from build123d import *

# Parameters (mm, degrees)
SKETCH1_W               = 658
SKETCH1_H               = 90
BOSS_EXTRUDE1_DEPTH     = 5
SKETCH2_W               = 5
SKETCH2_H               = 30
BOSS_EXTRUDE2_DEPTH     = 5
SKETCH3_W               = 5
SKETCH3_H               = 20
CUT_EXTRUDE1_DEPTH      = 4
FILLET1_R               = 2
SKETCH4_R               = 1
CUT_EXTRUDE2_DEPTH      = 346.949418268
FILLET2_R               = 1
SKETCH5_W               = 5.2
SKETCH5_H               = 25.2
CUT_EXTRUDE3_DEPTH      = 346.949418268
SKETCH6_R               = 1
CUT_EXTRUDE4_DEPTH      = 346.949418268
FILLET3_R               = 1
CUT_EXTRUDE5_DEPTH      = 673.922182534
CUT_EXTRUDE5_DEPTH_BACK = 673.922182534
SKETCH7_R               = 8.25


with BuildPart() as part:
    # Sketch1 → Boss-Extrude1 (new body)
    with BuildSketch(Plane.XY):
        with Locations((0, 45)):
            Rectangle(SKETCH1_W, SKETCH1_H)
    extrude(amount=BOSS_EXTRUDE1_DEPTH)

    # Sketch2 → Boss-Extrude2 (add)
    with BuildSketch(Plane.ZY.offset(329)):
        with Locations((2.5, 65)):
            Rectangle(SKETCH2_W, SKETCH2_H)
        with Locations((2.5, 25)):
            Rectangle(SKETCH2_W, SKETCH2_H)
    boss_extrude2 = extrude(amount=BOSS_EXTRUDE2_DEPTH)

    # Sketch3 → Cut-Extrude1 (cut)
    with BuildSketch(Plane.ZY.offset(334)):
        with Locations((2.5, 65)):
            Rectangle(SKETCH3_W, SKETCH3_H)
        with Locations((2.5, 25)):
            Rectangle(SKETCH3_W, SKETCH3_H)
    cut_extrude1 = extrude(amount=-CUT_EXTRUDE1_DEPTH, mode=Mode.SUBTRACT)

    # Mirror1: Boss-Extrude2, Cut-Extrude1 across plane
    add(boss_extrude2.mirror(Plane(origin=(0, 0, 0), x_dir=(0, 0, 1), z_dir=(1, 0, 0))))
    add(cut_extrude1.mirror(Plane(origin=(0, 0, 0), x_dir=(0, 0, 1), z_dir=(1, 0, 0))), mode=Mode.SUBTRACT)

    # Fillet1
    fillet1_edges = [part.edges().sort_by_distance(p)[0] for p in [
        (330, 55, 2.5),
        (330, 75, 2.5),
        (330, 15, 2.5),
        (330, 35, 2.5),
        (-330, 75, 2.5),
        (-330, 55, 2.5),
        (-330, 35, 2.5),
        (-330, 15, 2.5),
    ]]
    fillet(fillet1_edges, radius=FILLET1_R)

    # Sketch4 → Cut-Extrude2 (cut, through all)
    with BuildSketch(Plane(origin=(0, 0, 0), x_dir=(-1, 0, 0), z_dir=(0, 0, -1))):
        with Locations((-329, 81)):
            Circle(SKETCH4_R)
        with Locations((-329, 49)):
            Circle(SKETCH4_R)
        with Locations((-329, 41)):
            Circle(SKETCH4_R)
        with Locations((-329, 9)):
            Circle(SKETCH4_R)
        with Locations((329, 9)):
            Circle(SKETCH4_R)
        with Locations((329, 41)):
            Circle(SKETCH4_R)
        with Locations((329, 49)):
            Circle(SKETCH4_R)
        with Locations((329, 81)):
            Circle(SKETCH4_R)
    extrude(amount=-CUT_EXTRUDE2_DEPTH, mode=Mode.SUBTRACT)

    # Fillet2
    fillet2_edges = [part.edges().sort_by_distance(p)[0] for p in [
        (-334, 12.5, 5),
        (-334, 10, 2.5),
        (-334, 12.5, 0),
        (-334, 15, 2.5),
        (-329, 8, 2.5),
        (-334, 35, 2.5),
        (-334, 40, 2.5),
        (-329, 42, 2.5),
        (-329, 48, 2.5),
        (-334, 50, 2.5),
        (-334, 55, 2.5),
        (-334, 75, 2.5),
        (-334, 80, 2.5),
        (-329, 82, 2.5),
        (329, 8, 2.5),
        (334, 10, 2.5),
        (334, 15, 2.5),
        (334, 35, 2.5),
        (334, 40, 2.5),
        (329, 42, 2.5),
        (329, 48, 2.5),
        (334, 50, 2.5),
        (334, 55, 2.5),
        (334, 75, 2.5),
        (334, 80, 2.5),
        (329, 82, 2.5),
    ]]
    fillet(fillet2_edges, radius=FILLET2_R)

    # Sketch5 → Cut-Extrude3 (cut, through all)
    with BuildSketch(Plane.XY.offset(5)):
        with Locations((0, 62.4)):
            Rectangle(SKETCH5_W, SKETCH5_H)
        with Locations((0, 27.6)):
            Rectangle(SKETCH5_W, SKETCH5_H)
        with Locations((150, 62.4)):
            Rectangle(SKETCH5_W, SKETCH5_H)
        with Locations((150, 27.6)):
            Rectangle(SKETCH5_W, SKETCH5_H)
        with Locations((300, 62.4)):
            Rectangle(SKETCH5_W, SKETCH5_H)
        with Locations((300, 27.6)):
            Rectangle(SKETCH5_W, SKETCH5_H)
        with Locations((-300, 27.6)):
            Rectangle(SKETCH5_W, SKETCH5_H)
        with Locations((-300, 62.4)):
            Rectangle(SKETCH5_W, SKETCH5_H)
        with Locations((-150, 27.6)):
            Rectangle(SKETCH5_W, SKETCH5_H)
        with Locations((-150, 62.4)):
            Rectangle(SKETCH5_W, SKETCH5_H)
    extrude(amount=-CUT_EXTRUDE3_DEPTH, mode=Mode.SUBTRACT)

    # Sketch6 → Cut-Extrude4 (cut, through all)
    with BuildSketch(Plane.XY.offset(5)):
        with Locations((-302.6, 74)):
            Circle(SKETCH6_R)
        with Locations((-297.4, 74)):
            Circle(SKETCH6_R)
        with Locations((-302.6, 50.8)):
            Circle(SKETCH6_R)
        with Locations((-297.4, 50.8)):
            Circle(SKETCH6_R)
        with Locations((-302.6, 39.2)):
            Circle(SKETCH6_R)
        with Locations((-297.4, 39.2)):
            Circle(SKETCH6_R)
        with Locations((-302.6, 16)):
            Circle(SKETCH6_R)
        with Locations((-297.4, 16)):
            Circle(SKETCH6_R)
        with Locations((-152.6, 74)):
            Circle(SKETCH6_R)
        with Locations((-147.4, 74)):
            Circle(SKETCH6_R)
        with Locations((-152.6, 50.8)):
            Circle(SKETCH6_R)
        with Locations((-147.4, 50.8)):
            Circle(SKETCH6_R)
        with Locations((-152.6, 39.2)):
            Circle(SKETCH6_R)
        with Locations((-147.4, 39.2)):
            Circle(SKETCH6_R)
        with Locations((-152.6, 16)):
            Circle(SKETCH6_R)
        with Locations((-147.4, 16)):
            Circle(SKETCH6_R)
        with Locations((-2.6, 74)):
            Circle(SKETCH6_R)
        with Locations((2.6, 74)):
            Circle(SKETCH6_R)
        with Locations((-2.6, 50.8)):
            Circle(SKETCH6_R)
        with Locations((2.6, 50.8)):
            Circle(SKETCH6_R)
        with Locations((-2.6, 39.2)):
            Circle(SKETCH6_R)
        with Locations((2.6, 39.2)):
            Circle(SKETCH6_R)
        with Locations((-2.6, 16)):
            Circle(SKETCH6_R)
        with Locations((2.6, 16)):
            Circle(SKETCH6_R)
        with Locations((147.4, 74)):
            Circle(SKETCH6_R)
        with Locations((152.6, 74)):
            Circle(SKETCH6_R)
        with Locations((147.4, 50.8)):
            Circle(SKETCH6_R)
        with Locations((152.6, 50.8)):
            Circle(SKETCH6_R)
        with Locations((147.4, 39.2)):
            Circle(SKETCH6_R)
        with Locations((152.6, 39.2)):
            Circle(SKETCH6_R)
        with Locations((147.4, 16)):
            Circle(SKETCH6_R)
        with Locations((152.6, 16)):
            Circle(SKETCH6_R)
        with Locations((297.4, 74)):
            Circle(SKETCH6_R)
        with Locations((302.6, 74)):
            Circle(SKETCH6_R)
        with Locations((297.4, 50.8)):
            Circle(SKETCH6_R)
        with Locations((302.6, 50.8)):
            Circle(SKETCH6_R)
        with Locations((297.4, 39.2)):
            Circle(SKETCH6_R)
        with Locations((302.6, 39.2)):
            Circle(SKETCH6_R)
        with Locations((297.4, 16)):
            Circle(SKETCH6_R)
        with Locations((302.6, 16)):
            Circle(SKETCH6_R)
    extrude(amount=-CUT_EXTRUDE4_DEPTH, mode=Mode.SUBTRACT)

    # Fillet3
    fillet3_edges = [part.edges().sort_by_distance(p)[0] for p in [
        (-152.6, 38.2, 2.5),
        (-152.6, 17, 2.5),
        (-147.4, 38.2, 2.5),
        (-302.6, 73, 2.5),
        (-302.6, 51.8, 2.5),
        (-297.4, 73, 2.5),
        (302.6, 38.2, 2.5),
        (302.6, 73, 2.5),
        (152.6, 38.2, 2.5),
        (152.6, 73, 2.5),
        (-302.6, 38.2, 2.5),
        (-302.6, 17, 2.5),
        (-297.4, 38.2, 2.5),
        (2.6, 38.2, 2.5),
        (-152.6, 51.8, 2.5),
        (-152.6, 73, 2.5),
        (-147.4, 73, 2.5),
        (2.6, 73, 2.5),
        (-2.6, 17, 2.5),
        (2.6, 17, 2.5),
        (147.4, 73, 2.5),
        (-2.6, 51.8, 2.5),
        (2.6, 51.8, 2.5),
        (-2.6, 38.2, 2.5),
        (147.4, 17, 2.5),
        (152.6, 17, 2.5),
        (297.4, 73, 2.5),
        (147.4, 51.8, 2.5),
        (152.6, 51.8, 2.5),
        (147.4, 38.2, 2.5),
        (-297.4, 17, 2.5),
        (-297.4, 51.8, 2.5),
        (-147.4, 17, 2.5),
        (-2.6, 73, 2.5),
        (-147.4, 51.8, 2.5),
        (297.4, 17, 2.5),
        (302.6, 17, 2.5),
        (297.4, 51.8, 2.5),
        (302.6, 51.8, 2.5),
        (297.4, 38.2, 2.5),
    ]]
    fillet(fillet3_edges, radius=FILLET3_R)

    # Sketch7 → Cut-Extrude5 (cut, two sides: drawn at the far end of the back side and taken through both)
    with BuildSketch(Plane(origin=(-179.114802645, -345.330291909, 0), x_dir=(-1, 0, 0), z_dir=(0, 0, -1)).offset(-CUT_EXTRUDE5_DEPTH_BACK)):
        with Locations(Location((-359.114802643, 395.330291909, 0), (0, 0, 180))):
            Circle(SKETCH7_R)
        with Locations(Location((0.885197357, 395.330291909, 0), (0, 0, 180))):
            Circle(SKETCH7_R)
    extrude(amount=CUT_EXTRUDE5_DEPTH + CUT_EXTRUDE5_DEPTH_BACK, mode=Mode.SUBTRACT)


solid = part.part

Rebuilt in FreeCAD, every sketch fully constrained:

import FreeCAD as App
import Part
import Sketcher

V = App.Vector
Q = App.Units.Quantity


def edges_at(feature, points):
    """Names of the edges that pass closest to the given points."""
    edges = feature.Shape.Edges
    near = lambda p: min(range(len(edges)), key=lambda i: edges[i].distToShape(Part.Vertex(*p))[0])
    return sorted({f"Edge{near(p) + 1}" for p in points})

doc = App.newDocument("Part")
params = doc.addObject("Spreadsheet::Sheet", "Params")
for row, (alias, value) in enumerate([
    ("sketch1_width", "658 mm"),
    ("sketch1_height", "90 mm"),
    ("pad1_length", "5 mm"),
    ("sketch2_width", "30 mm"),
    ("sketch2_height", "5 mm"),
    ("pad2_length", "5 mm"),
    ("sketch3_width", "20 mm"),
    ("sketch3_height", "5 mm"),
    ("pocket1_length", "4 mm"),
    ("fillet_radius", "2 mm"),
    ("sketch4_diameter", "2 mm"),
    ("fillet2_radius", "1 mm"),
    ("sketch5_width", "5.2 mm"),
    ("sketch5_height", "25.2 mm"),
    ("sketch6_diameter", "2 mm"),
    ("fillet3_radius", "1 mm"),
    ("sketch7_diameter", "16.5 mm"),
], start=1):
    params.set(f"A{row}", alias)
    params.set(f"B{row}", "=" + value)
    params.setAlias(f"B{row}", alias)

body = doc.addObject("PartDesign::Body", "Body")

# Sketch on XY plane
sketch1 = body.newObject("Sketcher::SketchObject", "Sketch")
sketch1.AttachmentSupport = (doc.getObject("XY_Plane"), [""])
sketch1.MapMode = "FlatFace"
sketch1.addGeometry([
    Part.LineSegment(V(-329, 90, 0), V(-329, 0, 0)),
    Part.LineSegment(V(-329, 0, 0), V(329, 0, 0)),
    Part.LineSegment(V(329, 0, 0), V(329, 90, 0)),
    Part.LineSegment(V(329, 90, 0), V(-329, 90, 0)),
], False)
sketch1.addConstraint([
    Sketcher.Constraint("Coincident", 0, 2, 1, 1),
    Sketcher.Constraint("Coincident", 1, 2, 2, 1),
    Sketcher.Constraint("Coincident", 2, 2, 3, 1),
    Sketcher.Constraint("Coincident", 3, 2, 0, 1),
    Sketcher.Constraint("Vertical", 0),
    Sketcher.Constraint("Horizontal", 1),
    Sketcher.Constraint("Vertical", 2),
    Sketcher.Constraint("Horizontal", 3),
    Sketcher.Constraint("Symmetric", 0, 2, 1, 2, -1, 1),
    Sketcher.Constraint("DistanceX", 1, 1, 1, 2, Q("658 mm")),
    Sketcher.Constraint("DistanceY", 0, 2, 0, 1, Q("90 mm")),
])
sketch1.setExpression("Constraints[9]", "Params.sketch1_width")
sketch1.setExpression("Constraints[10]", "Params.sketch1_height")
pad1 = body.newObject("PartDesign::Pad", "Pad")
pad1.Profile = sketch1
pad1.setExpression("Length", "Params.pad1_length")

# Sketch on YZ plane
sketch2 = body.newObject("Sketcher::SketchObject", "Sketch001")
sketch2.AttachmentSupport = (doc.getObject("YZ_Plane"), [""])
sketch2.MapMode = "FlatFace"
sketch2.AttachmentOffset = App.Placement(V(0, 0, -329), App.Rotation())
sketch2.addGeometry([
    Part.LineSegment(V(80, 0, 0), V(50, 0, 0)),  # 0
    Part.LineSegment(V(50, 0, 0), V(50, 5, 0)),  # 1
    Part.LineSegment(V(50, 5, 0), V(80, 5, 0)),  # 2
    Part.LineSegment(V(80, 5, 0), V(80, 0, 0)),  # 3
    Part.LineSegment(V(40, 0, 0), V(10, 0, 0)),  # 4
    Part.LineSegment(V(10, 0, 0), V(10, 5, 0)),  # 5
    Part.LineSegment(V(10, 5, 0), V(40, 5, 0)),  # 6
    Part.LineSegment(V(40, 5, 0), V(40, 0, 0)),  # 7
], False)
sketch2.addConstraint([
    Sketcher.Constraint("Coincident", 0, 2, 1, 1),
    Sketcher.Constraint("Coincident", 1, 2, 2, 1),
    Sketcher.Constraint("Coincident", 2, 2, 3, 1),
    Sketcher.Constraint("Coincident", 3, 2, 0, 1),
    Sketcher.Constraint("Coincident", 4, 2, 5, 1),
    Sketcher.Constraint("Coincident", 5, 2, 6, 1),
    Sketcher.Constraint("Coincident", 6, 2, 7, 1),
    Sketcher.Constraint("Coincident", 7, 2, 4, 1),
    Sketcher.Constraint("Horizontal", 0),
    Sketcher.Constraint("Vertical", 1),
    Sketcher.Constraint("Horizontal", 2),
    Sketcher.Constraint("Vertical", 3),
    Sketcher.Constraint("Horizontal", 4),
    Sketcher.Constraint("Vertical", 5),
    Sketcher.Constraint("Horizontal", 6),
    Sketcher.Constraint("Vertical", 7),
    Sketcher.Constraint("PointOnObject", 0, 2, -1),
    Sketcher.Constraint("PointOnObject", 4, 2, -1),
    Sketcher.Constraint("Horizontal", 2, 2, 5, 2),
    Sketcher.Constraint("Equal", 2, 4),
    Sketcher.Constraint("DistanceX", 0, 2, 0, 1, Q("30 mm")),
    Sketcher.Constraint("DistanceY", 1, 1, 1, 2, Q("5 mm")),
    Sketcher.Constraint("DistanceX", -1, 1, 0, 2, Q("50 mm")),
    Sketcher.Constraint("DistanceX", -1, 1, 4, 2, Q("10 mm")),
])
sketch2.setExpression("Constraints[20]", "Params.sketch2_width")
sketch2.setExpression("Constraints[21]", "Params.sketch2_height")
pad2 = body.newObject("PartDesign::Pad", "Pad001")
pad2.Profile = sketch2
pad2.setExpression("Length", "Params.pad2_length")
pad2.Reversed = True

# Sketch on YZ plane
sketch3 = body.newObject("Sketcher::SketchObject", "Sketch002")
sketch3.AttachmentSupport = (doc.getObject("YZ_Plane"), [""])
sketch3.MapMode = "FlatFace"
sketch3.AttachmentOffset = App.Placement(V(0, 0, -334), App.Rotation())
sketch3.addGeometry([
    Part.LineSegment(V(75, 0, 0), V(55, 0, 0)),  # 0
    Part.LineSegment(V(55, 0, 0), V(55, 5, 0)),  # 1
    Part.LineSegment(V(55, 5, 0), V(75, 5, 0)),  # 2
    Part.LineSegment(V(75, 5, 0), V(75, 0, 0)),  # 3
    Part.LineSegment(V(35, 0, 0), V(15, 0, 0)),  # 4
    Part.LineSegment(V(15, 0, 0), V(15, 5, 0)),  # 5
    Part.LineSegment(V(15, 5, 0), V(35, 5, 0)),  # 6
    Part.LineSegment(V(35, 5, 0), V(35, 0, 0)),  # 7
], False)
sketch3.addConstraint([
    Sketcher.Constraint("Coincident", 0, 2, 1, 1),
    Sketcher.Constraint("Coincident", 1, 2, 2, 1),
    Sketcher.Constraint("Coincident", 2, 2, 3, 1),
    Sketcher.Constraint("Coincident", 3, 2, 0, 1),
    Sketcher.Constraint("Coincident", 4, 2, 5, 1),
    Sketcher.Constraint("Coincident", 5, 2, 6, 1),
    Sketcher.Constraint("Coincident", 6, 2, 7, 1),
    Sketcher.Constraint("Coincident", 7, 2, 4, 1),
    Sketcher.Constraint("Horizontal", 0),
    Sketcher.Constraint("Vertical", 1),
    Sketcher.Constraint("Horizontal", 2),
    Sketcher.Constraint("Vertical", 3),
    Sketcher.Constraint("Horizontal", 4),
    Sketcher.Constraint("Vertical", 5),
    Sketcher.Constraint("Horizontal", 6),
    Sketcher.Constraint("Vertical", 7),
    Sketcher.Constraint("PointOnObject", 0, 2, -1),
    Sketcher.Constraint("PointOnObject", 4, 2, -1),
    Sketcher.Constraint("Horizontal", 2, 2, 5, 2),
    Sketcher.Constraint("Equal", 2, 4),
    Sketcher.Constraint("DistanceX", 0, 2, 0, 1, Q("20 mm")),
    Sketcher.Constraint("DistanceY", 1, 1, 1, 2, Q("5 mm")),
    Sketcher.Constraint("DistanceX", -1, 1, 0, 2, Q("55 mm")),
    Sketcher.Constraint("DistanceX", -1, 1, 4, 2, Q("15 mm")),
])
sketch3.setExpression("Constraints[20]", "Params.sketch3_width")
sketch3.setExpression("Constraints[21]", "Params.sketch3_height")
pocket1 = body.newObject("PartDesign::Pocket", "Pocket")
pocket1.Profile = sketch3
pocket1.setExpression("Length", "Params.pocket1_length")
pocket1.Reversed = True
doc.recompute()

mirrored = body.newObject("PartDesign::Mirrored", "Mirrored")
mirrored.Originals = [pad2, pocket1]
mirrored.MirrorPlane = (doc.getObject("YZ_Plane"), [""])
body.Tip = mirrored
doc.recompute()

fillet = body.newObject("PartDesign::Fillet", "Fillet")
fillet.Base = (mirrored, edges_at(mirrored, [
    (330, 55, 2.5),
    (330, 75, 2.5),
    (330, 15, 2.5),
    (330, 35, 2.5),
    (-330, 75, 2.5),
    (-330, 55, 2.5),
    (-330, 35, 2.5),
    (-330, 15, 2.5),
]))
fillet.setExpression("Radius", "Params.fillet_radius")

# Sketch on XY plane
sketch4 = body.newObject("Sketcher::SketchObject", "Sketch003")
sketch4.AttachmentSupport = (doc.getObject("XY_Plane"), [""])
sketch4.MapMode = "FlatFace"
sketch4.addGeometry([
    Part.Circle(V(329, 81, 0), V(0, 0, 1), 1),  # 0
    Part.Circle(V(329, 49, 0), V(0, 0, 1), 1),  # 1
    Part.Circle(V(329, 41, 0), V(0, 0, 1), 1),  # 2
    Part.Circle(V(329, 9, 0), V(0, 0, 1), 1),  # 3
    Part.Circle(V(-329, 9, 0), V(0, 0, 1), 1),  # 4
    Part.Circle(V(-329, 41, 0), V(0, 0, 1), 1),  # 5
    Part.Circle(V(-329, 49, 0), V(0, 0, 1), 1),  # 6
    Part.Circle(V(-329, 81, 0), V(0, 0, 1), 1),  # 7
], False)
sketch4.addConstraint([
    Sketcher.Constraint("Equal", 0, 1),
    Sketcher.Constraint("Equal", 1, 2),
    Sketcher.Constraint("Equal", 2, 3),
    Sketcher.Constraint("Equal", 3, 4),
    Sketcher.Constraint("Equal", 4, 5),
    Sketcher.Constraint("Equal", 5, 6),
    Sketcher.Constraint("Equal", 6, 7),
    Sketcher.Constraint("Symmetric", 3, 3, 4, 3, -2),
    Sketcher.Constraint("Symmetric", 2, 3, 5, 3, -2),
    Sketcher.Constraint("Symmetric", 1, 3, 6, 3, -2),
    Sketcher.Constraint("Symmetric", 0, 3, 7, 3, -2),
    Sketcher.Constraint("Vertical", 0, 3, 1, 3),
    Sketcher.Constraint("Vertical", 1, 3, 2, 3),
    Sketcher.Constraint("Vertical", 2, 3, 3, 3),
    Sketcher.Constraint("Diameter", 0, Q("2 mm")),
    Sketcher.Constraint("DistanceX", -1, 1, 0, 3, Q("329 mm")),
    Sketcher.Constraint("DistanceY", -1, 1, 0, 3, Q("81 mm")),
    Sketcher.Constraint("DistanceY", -1, 1, 1, 3, Q("49 mm")),
    Sketcher.Constraint("DistanceY", -1, 1, 2, 3, Q("41 mm")),
    Sketcher.Constraint("DistanceY", -1, 1, 3, 3, Q("9 mm")),
])
sketch4.setExpression("Constraints[14]", "Params.sketch4_diameter")
pocket2 = body.newObject("PartDesign::Pocket", "Pocket001")
pocket2.Profile = sketch4
pocket2.Type = "ThroughAll"
pocket2.Reversed = True
doc.recompute()

fillet2 = body.newObject("PartDesign::Fillet", "Fillet001")
fillet2.Base = (pocket2, edges_at(pocket2, [
    (-334, 12.5, 5),
    (-334, 10, 2.5),
    (-334, 12.5, 0),
    (-334, 15, 2.5),
    (-329, 8, 2.5),
    (-334, 35, 2.5),
    (-334, 40, 2.5),
    (-329, 42, 2.5),
    (-329, 48, 2.5),
    (-334, 50, 2.5),
    (-334, 55, 2.5),
    (-334, 75, 2.5),
    (-334, 80, 2.5),
    (-329, 82, 2.5),
    (329, 8, 2.5),
    (334, 10, 2.5),
    (334, 15, 2.5),
    (334, 35, 2.5),
    (334, 40, 2.5),
    (329, 42, 2.5),
    (329, 48, 2.5),
    (334, 50, 2.5),
    (334, 55, 2.5),
    (334, 75, 2.5),
    (334, 80, 2.5),
    (329, 82, 2.5),
]))
fillet2.setExpression("Radius", "Params.fillet2_radius")

# Sketch on XY plane
sketch5 = body.newObject("Sketcher::SketchObject", "Sketch004")
sketch5.AttachmentSupport = (doc.getObject("XY_Plane"), [""])
sketch5.MapMode = "FlatFace"
sketch5.AttachmentOffset = App.Placement(V(0, 0, 5), App.Rotation())
sketch5.addGeometry([
    Part.LineSegment(V(-3, 75, 0), V(-3, 50, 0)),  # 0
    Part.LineSegment(V(-3, 50, 0), V(3, 50, 0)),  # 1
    Part.LineSegment(V(3, 50, 0), V(3, 75, 0)),  # 2
    Part.LineSegment(V(3, 75, 0), V(-3, 75, 0)),  # 3
    Part.LineSegment(V(-3, 40, 0), V(-3, 15, 0)),  # 4
    Part.LineSegment(V(-3, 15, 0), V(3, 15, 0)),  # 5
    Part.LineSegment(V(3, 15, 0), V(3, 40, 0)),  # 6
    Part.LineSegment(V(3, 40, 0), V(-3, 40, 0)),  # 7
    Part.LineSegment(V(147, 75, 0), V(147, 50, 0)),  # 8
    Part.LineSegment(V(147, 50, 0), V(153, 50, 0)),  # 9
    Part.LineSegment(V(153, 50, 0), V(153, 75, 0)),  # 10
    Part.LineSegment(V(153, 75, 0), V(147, 75, 0)),  # 11
    Part.LineSegment(V(147, 40, 0), V(147, 15, 0)),  # 12
    Part.LineSegment(V(147, 15, 0), V(153, 15, 0)),  # 13
    Part.LineSegment(V(153, 15, 0), V(153, 40, 0)),  # 14
    Part.LineSegment(V(153, 40, 0), V(147, 40, 0)),  # 15
    Part.LineSegment(V(297, 75, 0), V(297, 50, 0)),  # 16
    Part.LineSegment(V(297, 50, 0), V(303, 50, 0)),  # 17
    Part.LineSegment(V(303, 50, 0), V(303, 75, 0)),  # 18
    Part.LineSegment(V(303, 75, 0), V(297, 75, 0)),  # 19
    Part.LineSegment(V(297, 40, 0), V(297, 15, 0)),  # 20
    Part.LineSegment(V(297, 15, 0), V(303, 15, 0)),  # 21
    Part.LineSegment(V(303, 15, 0), V(303, 40, 0)),  # 22
    Part.LineSegment(V(303, 40, 0), V(297, 40, 0)),  # 23
    Part.LineSegment(V(-303, 40, 0), V(-303, 15, 0)),  # 24
    Part.LineSegment(V(-303, 15, 0), V(-297, 15, 0)),  # 25
    Part.LineSegment(V(-297, 15, 0), V(-297, 40, 0)),  # 26
    Part.LineSegment(V(-297, 40, 0), V(-303, 40, 0)),  # 27
    Part.LineSegment(V(-303, 75, 0), V(-303, 50, 0)),  # 28
    Part.LineSegment(V(-303, 50, 0), V(-297, 50, 0)),  # 29
    Part.LineSegment(V(-297, 50, 0), V(-297, 75, 0)),  # 30
    Part.LineSegment(V(-297, 75, 0), V(-303, 75, 0)),  # 31
    Part.LineSegment(V(-153, 40, 0), V(-153, 15, 0)),  # 32
    Part.LineSegment(V(-153, 15, 0), V(-147, 15, 0)),  # 33
    Part.LineSegment(V(-147, 15, 0), V(-147, 40, 0)),  # 34
    Part.LineSegment(V(-147, 40, 0), V(-153, 40, 0)),  # 35
    Part.LineSegment(V(-153, 75, 0), V(-153, 50, 0)),  # 36
    Part.LineSegment(V(-153, 50, 0), V(-147, 50, 0)),  # 37
    Part.LineSegment(V(-147, 50, 0), V(-147, 75, 0)),  # 38
    Part.LineSegment(V(-147, 75, 0), V(-153, 75, 0)),  # 39
], False)
sketch5.addConstraint([
    Sketcher.Constraint("Coincident", 0, 2, 1, 1),
    Sketcher.Constraint("Coincident", 1, 2, 2, 1),
    Sketcher.Constraint("Coincident", 2, 2, 3, 1),
    Sketcher.Constraint("Coincident", 3, 2, 0, 1),
    Sketcher.Constraint("Coincident", 4, 2, 5, 1),
    Sketcher.Constraint("Coincident", 5, 2, 6, 1),
    Sketcher.Constraint("Coincident", 6, 2, 7, 1),
    Sketcher.Constraint("Coincident", 7, 2, 4, 1),
    Sketcher.Constraint("Coincident", 8, 2, 9, 1),
    Sketcher.Constraint("Coincident", 9, 2, 10, 1),
    Sketcher.Constraint("Coincident", 10, 2, 11, 1),
    Sketcher.Constraint("Coincident", 11, 2, 8, 1),
    Sketcher.Constraint("Coincident", 12, 2, 13, 1),
    Sketcher.Constraint("Coincident", 13, 2, 14, 1),
    Sketcher.Constraint("Coincident", 14, 2, 15, 1),
    Sketcher.Constraint("Coincident", 15, 2, 12, 1),
    Sketcher.Constraint("Coincident", 16, 2, 17, 1),
    Sketcher.Constraint("Coincident", 17, 2, 18, 1),
    Sketcher.Constraint("Coincident", 18, 2, 19, 1),
    Sketcher.Constraint("Coincident", 19, 2, 16, 1),
    Sketcher.Constraint("Coincident", 20, 2, 21, 1),
    Sketcher.Constraint("Coincident", 21, 2, 22, 1),
    Sketcher.Constraint("Coincident", 22, 2, 23, 1),
    Sketcher.Constraint("Coincident", 23, 2, 20, 1),
    Sketcher.Constraint("Coincident", 24, 2, 25, 1),
    Sketcher.Constraint("Coincident", 25, 2, 26, 1),
    Sketcher.Constraint("Coincident", 26, 2, 27, 1),
    Sketcher.Constraint("Coincident", 27, 2, 24, 1),
    Sketcher.Constraint("Coincident", 28, 2, 29, 1),
    Sketcher.Constraint("Coincident", 29, 2, 30, 1),
    Sketcher.Constraint("Coincident", 30, 2, 31, 1),
    Sketcher.Constraint("Coincident", 31, 2, 28, 1),
    Sketcher.Constraint("Coincident", 32, 2, 33, 1),
    Sketcher.Constraint("Coincident", 33, 2, 34, 1),
    Sketcher.Constraint("Coincident", 34, 2, 35, 1),
    Sketcher.Constraint("Coincident", 35, 2, 32, 1),
    Sketcher.Constraint("Coincident", 36, 2, 37, 1),
    Sketcher.Constraint("Coincident", 37, 2, 38, 1),
    Sketcher.Constraint("Coincident", 38, 2, 39, 1),
    Sketcher.Constraint("Coincident", 39, 2, 36, 1),
    Sketcher.Constraint("Vertical", 0),
    Sketcher.Constraint("Horizontal", 1),
    Sketcher.Constraint("Vertical", 2),
    Sketcher.Constraint("Horizontal", 3),
    Sketcher.Constraint("Vertical", 4),
    Sketcher.Constraint("Horizontal", 5),
    Sketcher.Constraint("Vertical", 6),
    Sketcher.Constraint("Horizontal", 7),
    Sketcher.Constraint("Vertical", 8),
    Sketcher.Constraint("Horizontal", 9),
    Sketcher.Constraint("Vertical", 10),
    Sketcher.Constraint("Horizontal", 11),
    Sketcher.Constraint("Vertical", 12),
    Sketcher.Constraint("Horizontal", 13),
    Sketcher.Constraint("Vertical", 14),
    Sketcher.Constraint("Horizontal", 15),
    Sketcher.Constraint("Vertical", 16),
    Sketcher.Constraint("Horizontal", 17),
    Sketcher.Constraint("Vertical", 18),
    Sketcher.Constraint("Horizontal", 19),
    Sketcher.Constraint("Vertical", 20),
    Sketcher.Constraint("Horizontal", 21),
    Sketcher.Constraint("Vertical", 22),
    Sketcher.Constraint("Horizontal", 23),
    Sketcher.Constraint("Vertical", 24),
    Sketcher.Constraint("Horizontal", 25),
    Sketcher.Constraint("Vertical", 26),
    Sketcher.Constraint("Horizontal", 27),
    Sketcher.Constraint("Vertical", 28),
    Sketcher.Constraint("Horizontal", 29),
    Sketcher.Constraint("Vertical", 30),
    Sketcher.Constraint("Horizontal", 31),
    Sketcher.Constraint("Vertical", 32),
    Sketcher.Constraint("Horizontal", 33),
    Sketcher.Constraint("Vertical", 34),
    Sketcher.Constraint("Horizontal", 35),
    Sketcher.Constraint("Vertical", 36),
    Sketcher.Constraint("Horizontal", 37),
    Sketcher.Constraint("Vertical", 38),
    Sketcher.Constraint("Horizontal", 39),
    Sketcher.Constraint("Symmetric", 21, 2, 24, 2, -2),
    Sketcher.Constraint("Symmetric", 23, 2, 26, 2, -2),
    Sketcher.Constraint("Symmetric", 17, 2, 28, 2, -2),
    Sketcher.Constraint("Symmetric", 19, 2, 30, 2, -2),
    Sketcher.Constraint("Symmetric", 13, 2, 32, 2, -2),
    Sketcher.Constraint("Symmetric", 15, 2, 34, 2, -2),
    Sketcher.Constraint("Symmetric", 9, 2, 36, 2, -2),
    Sketcher.Constraint("Symmetric", 11, 2, 38, 2, -2),
    Sketcher.Constraint("Horizontal", 1, 2, 8, 2),
    Sketcher.Constraint("Horizontal", 3, 2, 10, 2),
    Sketcher.Constraint("Horizontal", 5, 2, 12, 2),
    Sketcher.Constraint("Horizontal", 7, 2, 14, 2),
    Sketcher.Constraint("Horizontal", 9, 2, 16, 2),
    Sketcher.Constraint("Horizontal", 11, 2, 18, 2),
    Sketcher.Constraint("Horizontal", 13, 2, 20, 2),
    Sketcher.Constraint("Horizontal", 15, 2, 22, 2),
    Sketcher.Constraint("Vertical", 3, 2, 4, 2),
    Sketcher.Constraint("Vertical", 2, 2, 5, 2),
    Sketcher.Constraint("Vertical", 11, 2, 12, 2),
    Sketcher.Constraint("Vertical", 10, 2, 13, 2),
    Sketcher.Constraint("Vertical", 19, 2, 20, 2),
    Sketcher.Constraint("Vertical", 18, 2, 21, 2),
    Sketcher.Constraint("Equal", 7, 9),
    Sketcher.Constraint("Equal", 15, 17),
    Sketcher.Constraint("Equal", 2, 4),
    Sketcher.Constraint("DistanceX", 1, 1, 1, 2, Q("5.2 mm")),
    Sketcher.Constraint("DistanceY", 0, 2, 0, 1, Q("25.2 mm")),
    Sketcher.Constraint("DistanceY", -1, 1, 2, 2, Q("75 mm")),
    Sketcher.Constraint("DistanceY", -1, 1, 4, 2, Q("15 mm")),
    Sketcher.Constraint("DistanceX", 0, 2, 8, 2, Q("150 mm")),
    Sketcher.Constraint("DistanceX", 8, 2, 16, 2, Q("150 mm")),
    Sketcher.Constraint("DistanceX", 24, 2, 4, 2, Q("300 mm")),
])
sketch5.setExpression("Constraints[105]", "Params.sketch5_width")
sketch5.setExpression("Constraints[106]", "Params.sketch5_height")
pocket3 = body.newObject("PartDesign::Pocket", "Pocket002")
pocket3.Profile = sketch5
pocket3.Type = "ThroughAll"

# Sketch on XY plane
sketch6 = body.newObject("Sketcher::SketchObject", "Sketch005")
sketch6.AttachmentSupport = (doc.getObject("XY_Plane"), [""])
sketch6.MapMode = "FlatFace"
sketch6.AttachmentOffset = App.Placement(V(0, 0, 5), App.Rotation())
sketch6.addGeometry([
    Part.Circle(V(-302.6, 74, 0), V(0, 0, 1), 1),  # 0
    Part.Circle(V(-297.4, 74, 0), V(0, 0, 1), 1),  # 1
    Part.Circle(V(-302.6, 50.8, 0), V(0, 0, 1), 1),  # 2
    Part.Circle(V(-297.4, 50.8, 0), V(0, 0, 1), 1),  # 3
    Part.Circle(V(-302.6, 39.2, 0), V(0, 0, 1), 1),  # 4
    Part.Circle(V(-297.4, 39.2, 0), V(0, 0, 1), 1),  # 5
    Part.Circle(V(-302.6, 16, 0), V(0, 0, 1), 1),  # 6
    Part.Circle(V(-297.4, 16, 0), V(0, 0, 1), 1),  # 7
    Part.Circle(V(-152.6, 74, 0), V(0, 0, 1), 1),  # 8
    Part.Circle(V(-147.4, 74, 0), V(0, 0, 1), 1),  # 9
    Part.Circle(V(-152.6, 50.8, 0), V(0, 0, 1), 1),  # 10
    Part.Circle(V(-147.4, 50.8, 0), V(0, 0, 1), 1),  # 11
    Part.Circle(V(-152.6, 39.2, 0), V(0, 0, 1), 1),  # 12
    Part.Circle(V(-147.4, 39.2, 0), V(0, 0, 1), 1),  # 13
    Part.Circle(V(-152.6, 16, 0), V(0, 0, 1), 1),  # 14
    Part.Circle(V(-147.4, 16, 0), V(0, 0, 1), 1),  # 15
    Part.Circle(V(-2.6, 74, 0), V(0, 0, 1), 1),  # 16
    Part.Circle(V(2.6, 74, 0), V(0, 0, 1), 1),  # 17
    Part.Circle(V(-2.6, 50.8, 0), V(0, 0, 1), 1),  # 18
    Part.Circle(V(2.6, 50.8, 0), V(0, 0, 1), 1),  # 19
    Part.Circle(V(-2.6, 39.2, 0), V(0, 0, 1), 1),  # 20
    Part.Circle(V(2.6, 39.2, 0), V(0, 0, 1), 1),  # 21
    Part.Circle(V(-2.6, 16, 0), V(0, 0, 1), 1),  # 22
    Part.Circle(V(2.6, 16, 0), V(0, 0, 1), 1),  # 23
    Part.Circle(V(147.4, 74, 0), V(0, 0, 1), 1),  # 24
    Part.Circle(V(152.6, 74, 0), V(0, 0, 1), 1),  # 25
    Part.Circle(V(147.4, 50.8, 0), V(0, 0, 1), 1),  # 26
    Part.Circle(V(152.6, 50.8, 0), V(0, 0, 1), 1),  # 27
    Part.Circle(V(147.4, 39.2, 0), V(0, 0, 1), 1),  # 28
    Part.Circle(V(152.6, 39.2, 0), V(0, 0, 1), 1),  # 29
    Part.Circle(V(147.4, 16, 0), V(0, 0, 1), 1),  # 30
    Part.Circle(V(152.6, 16, 0), V(0, 0, 1), 1),  # 31
    Part.Circle(V(297.4, 74, 0), V(0, 0, 1), 1),  # 32
    Part.Circle(V(302.6, 74, 0), V(0, 0, 1), 1),  # 33
    Part.Circle(V(297.4, 50.8, 0), V(0, 0, 1), 1),  # 34
    Part.Circle(V(302.6, 50.8, 0), V(0, 0, 1), 1),  # 35
    Part.Circle(V(297.4, 39.2, 0), V(0, 0, 1), 1),  # 36
    Part.Circle(V(302.6, 39.2, 0), V(0, 0, 1), 1),  # 37
    Part.Circle(V(297.4, 16, 0), V(0, 0, 1), 1),  # 38
    Part.Circle(V(302.6, 16, 0), V(0, 0, 1), 1),  # 39
], False)
sketch6.addConstraint([
    Sketcher.Constraint("Equal", 0, 1),
    Sketcher.Constraint("Equal", 1, 2),
    Sketcher.Constraint("Equal", 2, 3),
    Sketcher.Constraint("Equal", 3, 4),
    Sketcher.Constraint("Equal", 4, 5),
    Sketcher.Constraint("Equal", 5, 6),
    Sketcher.Constraint("Equal", 6, 7),
    Sketcher.Constraint("Equal", 7, 8),
    Sketcher.Constraint("Equal", 8, 9),
    Sketcher.Constraint("Equal", 9, 10),
    Sketcher.Constraint("Equal", 10, 11),
    Sketcher.Constraint("Equal", 11, 12),
    Sketcher.Constraint("Equal", 12, 13),
    Sketcher.Constraint("Equal", 13, 14),
    Sketcher.Constraint("Equal", 14, 15),
    Sketcher.Constraint("Equal", 15, 16),
    Sketcher.Constraint("Equal", 16, 17),
    Sketcher.Constraint("Equal", 17, 18),
    Sketcher.Constraint("Equal", 18, 19),
    Sketcher.Constraint("Equal", 19, 20),
    Sketcher.Constraint("Equal", 20, 21),
    Sketcher.Constraint("Equal", 21, 22),
    Sketcher.Constraint("Equal", 22, 23),
    Sketcher.Constraint("Equal", 23, 24),
    Sketcher.Constraint("Equal", 24, 25),
    Sketcher.Constraint("Equal", 25, 26),
    Sketcher.Constraint("Equal", 26, 27),
    Sketcher.Constraint("Equal", 27, 28),
    Sketcher.Constraint("Equal", 28, 29),
    Sketcher.Constraint("Equal", 29, 30),
    Sketcher.Constraint("Equal", 30, 31),
    Sketcher.Constraint("Equal", 31, 32),
    Sketcher.Constraint("Equal", 32, 33),
    Sketcher.Constraint("Equal", 33, 34),
    Sketcher.Constraint("Equal", 34, 35),
    Sketcher.Constraint("Equal", 35, 36),
    Sketcher.Constraint("Equal", 36, 37),
    Sketcher.Constraint("Equal", 37, 38),
    Sketcher.Constraint("Equal", 38, 39),
    Sketcher.Constraint("Symmetric", 16, 3, 17, 3, -2),
    Sketcher.Constraint("Symmetric", 18, 3, 19, 3, -2),
    Sketcher.Constraint("Symmetric", 20, 3, 21, 3, -2),
    Sketcher.Constraint("Symmetric", 22, 3, 23, 3, -2),
    Sketcher.Constraint("Symmetric", 9, 3, 24, 3, -2),
    Sketcher.Constraint("Symmetric", 8, 3, 25, 3, -2),
    Sketcher.Constraint("Symmetric", 11, 3, 26, 3, -2),
    Sketcher.Constraint("Symmetric", 10, 3, 27, 3, -2),
    Sketcher.Constraint("Symmetric", 13, 3, 28, 3, -2),
    Sketcher.Constraint("Symmetric", 12, 3, 29, 3, -2),
    Sketcher.Constraint("Symmetric", 15, 3, 30, 3, -2),
    Sketcher.Constraint("Symmetric", 14, 3, 31, 3, -2),
    Sketcher.Constraint("Symmetric", 1, 3, 32, 3, -2),
    Sketcher.Constraint("Symmetric", 0, 3, 33, 3, -2),
    Sketcher.Constraint("Symmetric", 3, 3, 34, 3, -2),
    Sketcher.Constraint("Symmetric", 2, 3, 35, 3, -2),
    Sketcher.Constraint("Symmetric", 5, 3, 36, 3, -2),
    Sketcher.Constraint("Symmetric", 4, 3, 37, 3, -2),
    Sketcher.Constraint("Symmetric", 7, 3, 38, 3, -2),
    Sketcher.Constraint("Symmetric", 6, 3, 39, 3, -2),
    Sketcher.Constraint("Horizontal", 0, 3, 1, 3),
    Sketcher.Constraint("Horizontal", 2, 3, 3, 3),
    Sketcher.Constraint("Horizontal", 4, 3, 5, 3),
    Sketcher.Constraint("Horizontal", 6, 3, 7, 3),
    Sketcher.Constraint("Horizontal", 1, 3, 8, 3),
    Sketcher.Constraint("Horizontal", 8, 3, 9, 3),
    Sketcher.Constraint("Horizontal", 3, 3, 10, 3),
    Sketcher.Constraint("Horizontal", 10, 3, 11, 3),
    Sketcher.Constraint("Horizontal", 5, 3, 12, 3),
    Sketcher.Constraint("Horizontal", 12, 3, 13, 3),
    Sketcher.Constraint("Horizontal", 7, 3, 14, 3),
    Sketcher.Constraint("Horizontal", 14, 3, 15, 3),
    Sketcher.Constraint("Horizontal", 9, 3, 16, 3),
    Sketcher.Constraint("Horizontal", 11, 3, 18, 3),
    Sketcher.Constraint("Horizontal", 13, 3, 20, 3),
    Sketcher.Constraint("Horizontal", 15, 3, 22, 3),
    Sketcher.Constraint("Vertical", 0, 3, 2, 3),
    Sketcher.Constraint("Vertical", 1, 3, 3, 3),
    Sketcher.Constraint("Vertical", 2, 3, 4, 3),
    Sketcher.Constraint("Vertical", 3, 3, 5, 3),
    Sketcher.Constraint("Vertical", 4, 3, 6, 3),
    Sketcher.Constraint("Vertical", 5, 3, 7, 3),
    Sketcher.Constraint("Vertical", 8, 3, 10, 3),
    Sketcher.Constraint("Vertical", 9, 3, 11, 3),
    Sketcher.Constraint("Vertical", 10, 3, 12, 3),
    Sketcher.Constraint("Vertical", 11, 3, 13, 3),
    Sketcher.Constraint("Vertical", 12, 3, 14, 3),
    Sketcher.Constraint("Vertical", 13, 3, 15, 3),
    Sketcher.Constraint("Vertical", 16, 3, 18, 3),
    Sketcher.Constraint("Vertical", 18, 3, 20, 3),
    Sketcher.Constraint("Vertical", 20, 3, 22, 3),
    Sketcher.Constraint("Diameter", 0, Q("2 mm")),
    Sketcher.Constraint("DistanceY", -1, 1, 0, 3, Q("74 mm")),
    Sketcher.Constraint("DistanceY", -1, 1, 6, 3, Q("16 mm")),
    Sketcher.Constraint("DistanceX", 0, 3, 8, 3, Q("150 mm")),
    Sketcher.Constraint("DistanceX", 1, 3, 9, 3, Q("150 mm")),
    Sketcher.Constraint("DistanceX", 8, 3, 16, 3, Q("150 mm")),
    Sketcher.Constraint("DistanceX", 9, 3, 17, 3, Q("150 mm")),
    Sketcher.Constraint("DistanceX", 0, 3, -1, 1, Q("302.6 mm")),
    Sketcher.Constraint("DistanceY", -1, 1, 2, 3, Q("50.8 mm")),
    Sketcher.Constraint("DistanceY", -1, 1, 4, 3, Q("39.2 mm")),
])
sketch6.setExpression("Constraints[90]", "Params.sketch6_diameter")
pocket4 = body.newObject("PartDesign::Pocket", "Pocket003")
pocket4.Profile = sketch6
pocket4.Type = "ThroughAll"
doc.recompute()

fillet3 = body.newObject("PartDesign::Fillet", "Fillet002")
fillet3.Base = (pocket4, edges_at(pocket4, [
    (-152.6, 38.2, 2.5),
    (-152.6, 17, 2.5),
    (-147.4, 38.2, 2.5),
    (-302.6, 73, 2.5),
    (-302.6, 51.8, 2.5),
    (-297.4, 73, 2.5),
    (302.6, 38.2, 2.5),
    (302.6, 73, 2.5),
    (152.6, 38.2, 2.5),
    (152.6, 73, 2.5),
    (-302.6, 38.2, 2.5),
    (-302.6, 17, 2.5),
    (-297.4, 38.2, 2.5),
    (2.6, 38.2, 2.5),
    (-152.6, 51.8, 2.5),
    (-152.6, 73, 2.5),
    (-147.4, 73, 2.5),
    (2.6, 73, 2.5),
    (-2.6, 17, 2.5),
    (2.6, 17, 2.5),
    (147.4, 73, 2.5),
    (-2.6, 51.8, 2.5),
    (2.6, 51.8, 2.5),
    (-2.6, 38.2, 2.5),
    (147.4, 17, 2.5),
    (152.6, 17, 2.5),
    (297.4, 73, 2.5),
    (147.4, 51.8, 2.5),
    (152.6, 51.8, 2.5),
    (147.4, 38.2, 2.5),
    (-297.4, 17, 2.5),
    (-297.4, 51.8, 2.5),
    (-147.4, 17, 2.5),
    (-2.6, 73, 2.5),
    (-147.4, 51.8, 2.5),
    (297.4, 17, 2.5),
    (302.6, 17, 2.5),
    (297.4, 51.8, 2.5),
    (302.6, 51.8, 2.5),
    (297.4, 38.2, 2.5),
]))
fillet3.setExpression("Radius", "Params.fillet3_radius")

# Sketch on XY plane
sketch7 = body.newObject("Sketcher::SketchObject", "Sketch006")
sketch7.AttachmentSupport = (doc.getObject("XY_Plane"), [""])
sketch7.MapMode = "FlatFace"
sketch7.addGeometry([
    Part.Circle(V(180, 50, 0), V(0, 0, 1), 8),
    Part.Circle(V(-180, 50, 0), V(0, 0, 1), 8),
], False)
sketch7.addConstraint([
    Sketcher.Constraint("Equal", 0, 1),
    Sketcher.Constraint("Symmetric", 0, 3, 1, 3, -2),
    Sketcher.Constraint("Diameter", 0, Q("16.5 mm")),
    Sketcher.Constraint("DistanceX", -1, 1, 0, 3, Q("180 mm")),
    Sketcher.Constraint("DistanceY", -1, 1, 0, 3, Q("50 mm")),
])
sketch7.setExpression("Constraints[2]", "Params.sketch7_diameter")
pocket5 = body.newObject("PartDesign::Pocket", "Pocket004")
pocket5.Profile = sketch7
pocket5.Type = "ThroughAll"
pocket5.Midplane = True

doc.recompute()
